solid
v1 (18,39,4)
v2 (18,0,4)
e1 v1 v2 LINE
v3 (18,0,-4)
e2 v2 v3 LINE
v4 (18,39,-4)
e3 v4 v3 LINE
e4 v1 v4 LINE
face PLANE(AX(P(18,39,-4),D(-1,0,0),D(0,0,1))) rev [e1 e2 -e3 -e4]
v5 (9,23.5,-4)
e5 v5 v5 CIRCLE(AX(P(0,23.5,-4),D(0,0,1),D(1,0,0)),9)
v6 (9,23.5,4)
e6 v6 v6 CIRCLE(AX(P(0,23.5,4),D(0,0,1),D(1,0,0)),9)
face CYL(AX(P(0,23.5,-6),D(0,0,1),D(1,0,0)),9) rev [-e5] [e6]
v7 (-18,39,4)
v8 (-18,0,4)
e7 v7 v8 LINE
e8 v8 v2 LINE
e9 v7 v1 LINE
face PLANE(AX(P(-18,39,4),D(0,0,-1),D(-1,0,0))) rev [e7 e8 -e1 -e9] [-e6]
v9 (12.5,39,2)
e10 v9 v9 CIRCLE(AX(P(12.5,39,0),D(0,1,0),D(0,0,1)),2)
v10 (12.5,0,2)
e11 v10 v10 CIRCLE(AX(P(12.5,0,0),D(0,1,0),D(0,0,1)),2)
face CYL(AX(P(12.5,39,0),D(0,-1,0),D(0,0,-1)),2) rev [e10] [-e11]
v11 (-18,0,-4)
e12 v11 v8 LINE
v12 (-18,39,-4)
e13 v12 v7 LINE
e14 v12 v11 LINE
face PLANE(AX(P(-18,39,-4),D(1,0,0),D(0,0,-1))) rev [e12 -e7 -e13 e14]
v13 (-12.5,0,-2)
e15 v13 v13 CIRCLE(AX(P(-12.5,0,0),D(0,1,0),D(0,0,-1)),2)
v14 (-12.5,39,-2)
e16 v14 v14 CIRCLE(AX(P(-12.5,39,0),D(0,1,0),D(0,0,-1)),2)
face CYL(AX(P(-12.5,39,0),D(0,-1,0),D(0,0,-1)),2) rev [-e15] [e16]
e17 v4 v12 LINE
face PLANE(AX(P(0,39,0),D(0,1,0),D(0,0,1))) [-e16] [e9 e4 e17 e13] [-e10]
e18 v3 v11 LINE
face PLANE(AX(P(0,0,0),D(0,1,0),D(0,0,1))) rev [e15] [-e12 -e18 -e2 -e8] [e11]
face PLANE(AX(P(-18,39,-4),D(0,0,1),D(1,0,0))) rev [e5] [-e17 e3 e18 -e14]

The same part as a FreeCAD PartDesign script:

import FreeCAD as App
import Part
import Sketcher
from FreeCAD import Vector

doc = App.newDocument("Part")
body = doc.addObject("PartDesign::Body", "Body")

# Sketch on XZ plane
sketch1 = doc.addObject("Sketcher::SketchObject", "Sketch")
body.addObject(sketch1)
sketch1.AttachmentSupport = (doc.XZ_Plane, [""])
sketch1.MapMode = "FlatFace"
sketch1.addGeometry([
    Part.LineSegment(Vector(-18, -4, 0), Vector(-18, 4, 0)),  # 0
    Part.LineSegment(Vector(-18, 4, 0), Vector(18, 4, 0)),  # 1
    Part.LineSegment(Vector(18, 4, 0), Vector(18, -4, 0)),  # 2
    Part.LineSegment(Vector(18, -4, 0), Vector(-18, -4, 0)),  # 3
    Part.Circle(Vector(-12.5, 0, 0), Vector(0, 0, 1), 2),  # 4
    Part.Circle(Vector(12.5, 0, 0), Vector(0, 0, 1), 2),  # 5
], False)
sketch1.addConstraint([
    Sketcher.Constraint("Coincident", 0, 2, 1, 1),
    Sketcher.Constraint("Coincident", 1, 2, 2, 1),
    Sketcher.Constraint("Coincident", 2, 2, 3, 1),
    Sketcher.Constraint("Coincident", 3, 2, 0, 1),
    Sketcher.Constraint("Vertical", 0),
    Sketcher.Constraint("Horizontal", 1),
    Sketcher.Constraint("Vertical", 2),
    Sketcher.Constraint("Horizontal", 3),
    Sketcher.Constraint("Equal", 4, 5),
    Sketcher.Constraint("Symmetric", 4, 3, 5, 3, -1, 1),
    Sketcher.Constraint("Symmetric", 0, 2, 2, 2, -1, 1),
    Sketcher.Constraint("PointOnObject", 4, 3, -1),
    Sketcher.Constraint("Diameter", 4, 4.0),
    Sketcher.Constraint("DistanceX", 1, 1, 1, 2, 36.0),
    Sketcher.Constraint("DistanceY", 0, 1, 0, 2, 8.0),
    Sketcher.Constraint("DistanceX", 4, 3, 5, 3, 25.0),
])
pad1 = doc.addObject("PartDesign::Pad", "Pad")
body.addObject(pad1)
pad1.Profile = sketch1
pad1.Length = 39
pad1.Reversed = True

# Sketch on XY plane
sketch2 = doc.addObject("Sketcher::SketchObject", "Sketch001")
body.addObject(sketch2)
sketch2.AttachmentSupport = (doc.XY_Plane, [""])
sketch2.MapMode = "FlatFace"
sketch2.AttachmentOffset = App.Placement(Vector(0, 0, 4), App.Rotation())
sketch2.addGeometry(Part.Circle(Vector(0, 23.5, 0), Vector(0, 0, 1), 9), False)
sketch2.addConstraint([
    Sketcher.Constraint("PointOnObject", 0, 3, -2),
    Sketcher.Constraint("Diameter", 0, 18.0),
    Sketcher.Constraint("DistanceY", -1, 1, 0, 3, 23.5),
])
pocket1 = doc.addObject("PartDesign::Pocket", "Pocket")
body.addObject(pocket1)
pocket1.Profile = sketch2
pocket1.Length = 10

doc.recompute()
